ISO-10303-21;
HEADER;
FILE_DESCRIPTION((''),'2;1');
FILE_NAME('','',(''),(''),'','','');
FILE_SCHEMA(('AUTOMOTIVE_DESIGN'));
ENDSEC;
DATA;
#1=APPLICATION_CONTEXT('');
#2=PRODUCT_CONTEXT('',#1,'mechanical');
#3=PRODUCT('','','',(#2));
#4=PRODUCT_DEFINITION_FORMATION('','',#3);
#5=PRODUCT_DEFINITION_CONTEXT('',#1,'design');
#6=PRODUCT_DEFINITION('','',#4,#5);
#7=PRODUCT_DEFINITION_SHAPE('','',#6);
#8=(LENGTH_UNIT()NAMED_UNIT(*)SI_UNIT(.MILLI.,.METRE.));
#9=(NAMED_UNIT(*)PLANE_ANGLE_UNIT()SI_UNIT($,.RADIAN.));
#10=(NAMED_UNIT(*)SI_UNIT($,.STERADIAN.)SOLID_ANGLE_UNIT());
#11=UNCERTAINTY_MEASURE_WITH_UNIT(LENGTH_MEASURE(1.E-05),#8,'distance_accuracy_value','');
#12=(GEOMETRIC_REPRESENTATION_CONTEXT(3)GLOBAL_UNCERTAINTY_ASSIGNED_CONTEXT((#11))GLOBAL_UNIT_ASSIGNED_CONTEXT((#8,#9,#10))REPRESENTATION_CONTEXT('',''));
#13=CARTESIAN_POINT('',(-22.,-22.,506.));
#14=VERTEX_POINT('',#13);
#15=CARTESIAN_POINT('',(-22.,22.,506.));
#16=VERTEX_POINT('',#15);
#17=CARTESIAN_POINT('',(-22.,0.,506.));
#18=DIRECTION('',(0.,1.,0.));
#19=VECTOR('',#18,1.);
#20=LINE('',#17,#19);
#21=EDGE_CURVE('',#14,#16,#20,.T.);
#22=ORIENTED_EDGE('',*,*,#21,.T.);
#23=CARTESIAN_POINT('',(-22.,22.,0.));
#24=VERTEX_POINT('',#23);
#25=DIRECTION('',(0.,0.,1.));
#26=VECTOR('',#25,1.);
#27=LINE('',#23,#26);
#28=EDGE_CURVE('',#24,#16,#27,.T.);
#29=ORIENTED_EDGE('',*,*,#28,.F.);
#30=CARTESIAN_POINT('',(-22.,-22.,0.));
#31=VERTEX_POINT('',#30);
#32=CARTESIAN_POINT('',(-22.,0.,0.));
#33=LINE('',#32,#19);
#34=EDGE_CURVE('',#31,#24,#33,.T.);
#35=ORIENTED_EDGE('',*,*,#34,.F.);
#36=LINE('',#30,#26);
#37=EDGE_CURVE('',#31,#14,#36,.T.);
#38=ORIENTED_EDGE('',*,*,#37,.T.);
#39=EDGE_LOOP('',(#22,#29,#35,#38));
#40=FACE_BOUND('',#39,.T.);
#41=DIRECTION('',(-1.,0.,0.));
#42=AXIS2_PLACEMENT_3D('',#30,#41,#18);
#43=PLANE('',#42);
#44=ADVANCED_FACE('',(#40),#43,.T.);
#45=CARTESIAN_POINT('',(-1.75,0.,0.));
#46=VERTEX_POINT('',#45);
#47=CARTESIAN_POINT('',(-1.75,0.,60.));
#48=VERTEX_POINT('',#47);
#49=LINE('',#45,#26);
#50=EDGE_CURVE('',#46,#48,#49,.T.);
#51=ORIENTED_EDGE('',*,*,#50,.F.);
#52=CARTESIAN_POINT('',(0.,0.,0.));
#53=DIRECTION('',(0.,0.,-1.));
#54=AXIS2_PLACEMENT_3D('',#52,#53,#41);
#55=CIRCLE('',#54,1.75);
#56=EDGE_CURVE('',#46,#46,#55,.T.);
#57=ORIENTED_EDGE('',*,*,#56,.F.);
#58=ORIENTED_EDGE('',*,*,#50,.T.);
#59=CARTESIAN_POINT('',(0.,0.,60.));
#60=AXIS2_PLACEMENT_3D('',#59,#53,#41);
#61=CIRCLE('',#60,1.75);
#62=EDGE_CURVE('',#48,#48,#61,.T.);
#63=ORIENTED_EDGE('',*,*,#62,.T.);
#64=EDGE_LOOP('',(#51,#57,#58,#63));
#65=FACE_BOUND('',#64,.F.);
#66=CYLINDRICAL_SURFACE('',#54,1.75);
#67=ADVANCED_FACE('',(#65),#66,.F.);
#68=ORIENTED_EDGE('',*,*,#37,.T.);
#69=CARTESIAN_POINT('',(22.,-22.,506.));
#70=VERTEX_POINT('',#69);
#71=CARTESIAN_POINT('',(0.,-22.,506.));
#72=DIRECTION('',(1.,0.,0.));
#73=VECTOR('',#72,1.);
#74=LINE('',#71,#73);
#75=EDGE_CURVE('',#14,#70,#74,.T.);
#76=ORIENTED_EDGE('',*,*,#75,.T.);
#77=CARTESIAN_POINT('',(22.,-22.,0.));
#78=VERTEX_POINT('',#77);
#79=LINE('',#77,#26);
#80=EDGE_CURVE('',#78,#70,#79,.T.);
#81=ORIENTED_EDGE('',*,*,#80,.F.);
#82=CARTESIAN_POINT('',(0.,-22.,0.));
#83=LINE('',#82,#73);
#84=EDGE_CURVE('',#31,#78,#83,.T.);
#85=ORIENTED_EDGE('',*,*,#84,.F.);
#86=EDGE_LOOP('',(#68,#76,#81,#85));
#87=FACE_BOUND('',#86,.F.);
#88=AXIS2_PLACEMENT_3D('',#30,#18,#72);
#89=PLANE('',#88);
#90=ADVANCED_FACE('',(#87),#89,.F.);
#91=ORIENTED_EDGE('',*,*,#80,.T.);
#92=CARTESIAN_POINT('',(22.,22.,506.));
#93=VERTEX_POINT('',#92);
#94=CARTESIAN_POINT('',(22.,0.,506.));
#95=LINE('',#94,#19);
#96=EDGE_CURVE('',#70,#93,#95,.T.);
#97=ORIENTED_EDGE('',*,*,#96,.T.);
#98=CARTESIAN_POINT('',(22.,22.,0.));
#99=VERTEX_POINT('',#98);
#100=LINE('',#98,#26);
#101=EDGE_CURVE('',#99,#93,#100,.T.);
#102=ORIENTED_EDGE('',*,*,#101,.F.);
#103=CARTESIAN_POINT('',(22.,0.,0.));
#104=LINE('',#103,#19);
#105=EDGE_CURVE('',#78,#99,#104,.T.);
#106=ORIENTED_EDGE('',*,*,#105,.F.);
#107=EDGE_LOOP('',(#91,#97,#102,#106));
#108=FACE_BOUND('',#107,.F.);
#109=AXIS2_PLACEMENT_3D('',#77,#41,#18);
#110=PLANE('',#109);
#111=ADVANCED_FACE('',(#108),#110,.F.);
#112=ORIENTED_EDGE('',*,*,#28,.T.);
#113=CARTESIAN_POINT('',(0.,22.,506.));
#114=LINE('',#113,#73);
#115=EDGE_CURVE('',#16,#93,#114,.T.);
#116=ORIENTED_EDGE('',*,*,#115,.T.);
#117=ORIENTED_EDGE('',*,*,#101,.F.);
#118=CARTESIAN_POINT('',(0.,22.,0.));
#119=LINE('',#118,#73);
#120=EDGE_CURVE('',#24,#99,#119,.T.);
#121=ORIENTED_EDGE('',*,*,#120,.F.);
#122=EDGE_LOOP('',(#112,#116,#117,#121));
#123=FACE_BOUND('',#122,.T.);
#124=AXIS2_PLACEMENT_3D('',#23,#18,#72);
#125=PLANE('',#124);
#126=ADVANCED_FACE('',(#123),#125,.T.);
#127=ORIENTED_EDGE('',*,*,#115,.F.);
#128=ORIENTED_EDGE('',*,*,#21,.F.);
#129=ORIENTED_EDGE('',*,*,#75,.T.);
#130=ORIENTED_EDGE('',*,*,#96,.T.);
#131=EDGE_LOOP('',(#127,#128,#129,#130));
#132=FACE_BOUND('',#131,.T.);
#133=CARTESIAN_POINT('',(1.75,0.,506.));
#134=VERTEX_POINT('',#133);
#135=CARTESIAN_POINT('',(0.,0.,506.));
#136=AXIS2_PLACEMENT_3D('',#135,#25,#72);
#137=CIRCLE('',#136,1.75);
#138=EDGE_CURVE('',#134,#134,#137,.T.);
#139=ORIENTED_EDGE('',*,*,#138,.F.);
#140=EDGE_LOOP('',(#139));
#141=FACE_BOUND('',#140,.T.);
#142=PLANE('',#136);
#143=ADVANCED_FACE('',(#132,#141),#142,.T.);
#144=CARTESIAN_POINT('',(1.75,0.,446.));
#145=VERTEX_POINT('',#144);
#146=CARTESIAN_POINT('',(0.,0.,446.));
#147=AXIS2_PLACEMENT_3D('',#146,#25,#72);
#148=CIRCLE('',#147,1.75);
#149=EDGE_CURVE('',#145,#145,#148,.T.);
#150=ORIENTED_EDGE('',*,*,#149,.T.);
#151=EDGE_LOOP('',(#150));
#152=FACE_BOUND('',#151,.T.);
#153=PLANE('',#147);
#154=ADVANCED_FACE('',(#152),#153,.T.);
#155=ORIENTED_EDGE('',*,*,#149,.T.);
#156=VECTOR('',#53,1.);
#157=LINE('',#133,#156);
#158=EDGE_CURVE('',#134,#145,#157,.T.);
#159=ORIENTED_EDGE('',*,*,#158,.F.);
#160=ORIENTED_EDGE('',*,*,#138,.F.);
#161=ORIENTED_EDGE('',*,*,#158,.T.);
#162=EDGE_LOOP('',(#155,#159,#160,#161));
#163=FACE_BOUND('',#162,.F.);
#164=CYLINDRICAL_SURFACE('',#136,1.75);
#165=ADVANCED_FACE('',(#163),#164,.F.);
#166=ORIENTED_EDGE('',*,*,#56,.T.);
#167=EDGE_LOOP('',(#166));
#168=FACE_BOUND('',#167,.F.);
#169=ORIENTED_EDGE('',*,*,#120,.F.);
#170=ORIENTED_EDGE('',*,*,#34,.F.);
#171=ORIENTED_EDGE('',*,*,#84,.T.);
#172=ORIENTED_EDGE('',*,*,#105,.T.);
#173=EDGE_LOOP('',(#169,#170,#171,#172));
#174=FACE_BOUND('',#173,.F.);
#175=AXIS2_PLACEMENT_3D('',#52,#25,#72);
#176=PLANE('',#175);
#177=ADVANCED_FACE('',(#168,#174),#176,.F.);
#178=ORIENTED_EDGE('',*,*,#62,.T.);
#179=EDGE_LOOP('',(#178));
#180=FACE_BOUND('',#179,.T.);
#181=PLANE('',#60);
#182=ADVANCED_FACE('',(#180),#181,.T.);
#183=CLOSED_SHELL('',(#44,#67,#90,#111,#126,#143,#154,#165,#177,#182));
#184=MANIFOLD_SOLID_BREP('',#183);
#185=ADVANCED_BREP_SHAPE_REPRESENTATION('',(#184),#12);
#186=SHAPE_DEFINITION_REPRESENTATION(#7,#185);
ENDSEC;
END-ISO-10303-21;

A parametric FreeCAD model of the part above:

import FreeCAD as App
import Part
import Sketcher
Q = App.Units.Quantity


def add_polygon(sketch, points):
    """Adds a closed chain of lines whose ends are joined by coincident constraints."""
    first, n = sketch.GeometryCount, len(points)
    for a, b in zip(points, points[1:] + points[:1]):
        sketch.addGeometry(Part.LineSegment(App.Vector(*a, 0), App.Vector(*b, 0)), False)
    for i in range(n):
        sketch.addConstraint(Sketcher.Constraint("Coincident", first + i, 2, first + (i + 1) % n, 1))

doc = App.newDocument("Part")
body = doc.addObject("PartDesign::Body", "Body")

sketch1 = body.newObject("Sketcher::SketchObject", "Sketch")
sketch1.AttachmentSupport = (doc.getObject("XY_Plane"), [""])
sketch1.MapMode = "FlatFace"
add_polygon(sketch1, [(-22, 22), (-22, -22), (22, -22), (22, 22)])
sketch1.addConstraint(Sketcher.Constraint("Vertical", 0))
sketch1.addConstraint(Sketcher.Constraint("Horizontal", 1))
sketch1.addConstraint(Sketcher.Constraint("Vertical", 2))
sketch1.addConstraint(Sketcher.Constraint("Horizontal", 3))
sketch1.addConstraint(Sketcher.Constraint("Symmetric", 0, 2, 2, 2, -1, 1))
sketch1.addConstraint(Sketcher.Constraint("Equal", 3, 0))
sketch1.addConstraint(Sketcher.Constraint("DistanceX", 1, 1, 1, 2, Q("44 mm")))
pad1 = body.newObject("PartDesign::Pad", "Pad")
pad1.Profile = sketch1
pad1.Length = 506

sketch2 = body.newObject("Sketcher::SketchObject", "Sketch001")
sketch2.AttachmentSupport = (doc.getObject("XY_Plane"), [""])
sketch2.MapMode = "FlatFace"
sketch2.addGeometry(Part.Circle(App.Vector(0, 0, 0), App.Vector(0, 0, 1), 1.8), False)
sketch2.addConstraint(Sketcher.Constraint("Coincident", 0, 3, -1, 1))
sketch2.addConstraint(Sketcher.Constraint("Diameter", 0, Q("3.5 mm")))
pocket1 = body.newObject("PartDesign::Pocket", "Pocket")
pocket1.Profile = sketch2
pocket1.Length = 60
pocket1.Reversed = True

sketch3 = body.newObject("Sketcher::SketchObject", "Sketch002")
sketch3.AttachmentSupport = (doc.getObject("XY_Plane"), [""])
sketch3.MapMode = "FlatFace"
sketch3.AttachmentOffset = App.Placement(App.Vector(0, 0, 506), App.Rotation())
sketch3.addGeometry(Part.Circle(App.Vector(0, 0, 0), App.Vector(0, 0, 1), 1.8), False)
sketch3.addConstraint(Sketcher.Constraint("Coincident", 0, 3, -1, 1))
sketch3.addConstraint(Sketcher.Constraint("Diameter", 0, Q("3.5 mm")))
pocket2 = body.newObject("PartDesign::Pocket", "Pocket001")
pocket2.Profile = sketch3
pocket2.Length = 60

doc.recompute()
